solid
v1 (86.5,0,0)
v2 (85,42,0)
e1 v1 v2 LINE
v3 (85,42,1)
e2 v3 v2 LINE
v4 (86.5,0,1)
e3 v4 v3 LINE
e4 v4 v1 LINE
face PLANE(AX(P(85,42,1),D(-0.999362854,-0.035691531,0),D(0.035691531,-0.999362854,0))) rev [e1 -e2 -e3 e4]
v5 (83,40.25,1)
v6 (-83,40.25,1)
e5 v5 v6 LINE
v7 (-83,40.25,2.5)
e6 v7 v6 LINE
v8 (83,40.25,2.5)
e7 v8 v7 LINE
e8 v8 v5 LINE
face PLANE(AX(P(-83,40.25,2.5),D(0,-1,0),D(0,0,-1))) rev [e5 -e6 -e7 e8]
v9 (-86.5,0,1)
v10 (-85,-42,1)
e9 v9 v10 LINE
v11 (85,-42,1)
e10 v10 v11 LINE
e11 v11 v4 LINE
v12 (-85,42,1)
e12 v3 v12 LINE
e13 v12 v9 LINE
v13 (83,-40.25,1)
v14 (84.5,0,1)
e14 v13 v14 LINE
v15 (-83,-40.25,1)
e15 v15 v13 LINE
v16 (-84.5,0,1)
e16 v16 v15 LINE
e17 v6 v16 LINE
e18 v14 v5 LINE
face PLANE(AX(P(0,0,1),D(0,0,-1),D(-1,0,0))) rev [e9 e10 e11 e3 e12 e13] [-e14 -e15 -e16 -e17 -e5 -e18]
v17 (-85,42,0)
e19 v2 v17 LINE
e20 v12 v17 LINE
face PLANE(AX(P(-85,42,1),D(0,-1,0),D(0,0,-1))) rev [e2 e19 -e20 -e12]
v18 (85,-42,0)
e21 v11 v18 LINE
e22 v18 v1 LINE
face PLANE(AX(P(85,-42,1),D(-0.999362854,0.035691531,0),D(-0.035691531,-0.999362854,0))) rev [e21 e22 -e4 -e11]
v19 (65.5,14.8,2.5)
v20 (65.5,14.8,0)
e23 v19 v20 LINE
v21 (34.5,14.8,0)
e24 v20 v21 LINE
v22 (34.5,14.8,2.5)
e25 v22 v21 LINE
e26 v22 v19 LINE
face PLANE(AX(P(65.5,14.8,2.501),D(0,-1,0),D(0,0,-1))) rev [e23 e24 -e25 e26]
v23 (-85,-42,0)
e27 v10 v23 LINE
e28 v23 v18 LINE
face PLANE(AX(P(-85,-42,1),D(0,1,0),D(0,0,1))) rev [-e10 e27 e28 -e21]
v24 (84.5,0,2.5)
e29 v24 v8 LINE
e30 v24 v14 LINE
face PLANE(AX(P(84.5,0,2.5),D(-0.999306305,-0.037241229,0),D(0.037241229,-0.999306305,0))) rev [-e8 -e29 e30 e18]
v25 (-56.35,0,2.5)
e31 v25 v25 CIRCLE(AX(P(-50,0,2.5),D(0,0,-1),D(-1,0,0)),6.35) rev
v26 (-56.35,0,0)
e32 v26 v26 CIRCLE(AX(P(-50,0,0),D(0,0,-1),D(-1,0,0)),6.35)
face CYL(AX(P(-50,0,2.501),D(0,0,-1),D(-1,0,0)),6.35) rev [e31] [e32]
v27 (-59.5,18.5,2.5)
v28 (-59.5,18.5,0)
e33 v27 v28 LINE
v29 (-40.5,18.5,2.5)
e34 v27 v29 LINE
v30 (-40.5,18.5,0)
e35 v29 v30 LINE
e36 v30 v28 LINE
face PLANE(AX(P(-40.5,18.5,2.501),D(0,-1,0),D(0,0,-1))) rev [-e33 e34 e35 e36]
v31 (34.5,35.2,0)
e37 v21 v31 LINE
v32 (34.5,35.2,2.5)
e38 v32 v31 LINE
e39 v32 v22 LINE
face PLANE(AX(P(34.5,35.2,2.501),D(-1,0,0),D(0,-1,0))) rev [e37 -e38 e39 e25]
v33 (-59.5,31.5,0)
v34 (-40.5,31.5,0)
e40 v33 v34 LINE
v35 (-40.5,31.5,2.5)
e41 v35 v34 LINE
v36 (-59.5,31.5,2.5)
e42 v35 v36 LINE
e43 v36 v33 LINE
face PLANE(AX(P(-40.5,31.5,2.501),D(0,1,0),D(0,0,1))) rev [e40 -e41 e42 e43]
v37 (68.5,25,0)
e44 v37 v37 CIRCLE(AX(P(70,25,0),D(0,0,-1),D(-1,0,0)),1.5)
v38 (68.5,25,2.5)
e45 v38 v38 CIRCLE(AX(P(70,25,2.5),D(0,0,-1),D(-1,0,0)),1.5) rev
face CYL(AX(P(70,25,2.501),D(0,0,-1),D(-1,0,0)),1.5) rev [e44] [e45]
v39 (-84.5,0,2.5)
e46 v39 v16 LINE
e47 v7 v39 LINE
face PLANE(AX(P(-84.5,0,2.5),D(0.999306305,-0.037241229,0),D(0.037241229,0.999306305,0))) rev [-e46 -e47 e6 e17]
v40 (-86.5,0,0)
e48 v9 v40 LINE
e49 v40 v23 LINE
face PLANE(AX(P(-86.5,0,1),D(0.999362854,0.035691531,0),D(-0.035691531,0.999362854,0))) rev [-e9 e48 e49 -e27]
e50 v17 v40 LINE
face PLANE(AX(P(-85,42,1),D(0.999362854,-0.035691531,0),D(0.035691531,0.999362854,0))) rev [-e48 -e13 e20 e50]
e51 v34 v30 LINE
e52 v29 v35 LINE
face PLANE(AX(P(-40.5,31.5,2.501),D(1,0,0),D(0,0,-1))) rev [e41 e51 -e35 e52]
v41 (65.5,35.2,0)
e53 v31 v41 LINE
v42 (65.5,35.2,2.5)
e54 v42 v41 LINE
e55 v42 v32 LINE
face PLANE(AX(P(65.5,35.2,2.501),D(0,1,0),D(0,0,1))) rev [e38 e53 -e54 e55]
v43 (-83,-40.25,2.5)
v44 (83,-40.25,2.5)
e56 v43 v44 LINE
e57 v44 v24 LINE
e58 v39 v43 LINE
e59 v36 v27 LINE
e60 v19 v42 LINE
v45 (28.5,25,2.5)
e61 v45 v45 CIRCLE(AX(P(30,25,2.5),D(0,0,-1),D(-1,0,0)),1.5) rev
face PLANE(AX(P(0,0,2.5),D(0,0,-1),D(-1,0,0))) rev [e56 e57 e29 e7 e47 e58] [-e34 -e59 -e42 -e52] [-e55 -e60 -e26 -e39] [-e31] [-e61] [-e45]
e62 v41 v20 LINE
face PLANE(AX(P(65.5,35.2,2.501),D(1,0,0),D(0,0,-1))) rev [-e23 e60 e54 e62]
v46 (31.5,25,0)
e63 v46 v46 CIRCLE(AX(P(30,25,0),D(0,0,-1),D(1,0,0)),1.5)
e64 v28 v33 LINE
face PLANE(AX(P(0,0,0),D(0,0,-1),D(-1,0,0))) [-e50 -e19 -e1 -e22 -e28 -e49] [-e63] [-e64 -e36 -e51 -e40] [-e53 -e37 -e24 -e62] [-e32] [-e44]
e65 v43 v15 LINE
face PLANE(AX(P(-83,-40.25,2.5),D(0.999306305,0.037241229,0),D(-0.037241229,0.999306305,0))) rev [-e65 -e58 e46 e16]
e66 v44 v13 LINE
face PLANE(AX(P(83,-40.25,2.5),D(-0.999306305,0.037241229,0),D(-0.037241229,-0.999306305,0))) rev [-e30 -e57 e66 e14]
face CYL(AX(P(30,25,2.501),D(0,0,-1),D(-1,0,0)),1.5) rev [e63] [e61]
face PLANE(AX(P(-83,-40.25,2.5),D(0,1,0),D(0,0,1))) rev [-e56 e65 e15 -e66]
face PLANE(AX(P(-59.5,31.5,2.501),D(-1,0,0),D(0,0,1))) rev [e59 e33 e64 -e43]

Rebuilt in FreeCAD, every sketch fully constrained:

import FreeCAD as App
import Part
import Sketcher


def add_polygon(sketch, points):
    """Adds a closed chain of lines whose ends are joined by coincident constraints."""
    first, n = sketch.GeometryCount, len(points)
    for a, b in zip(points, points[1:] + points[:1]):
        sketch.addGeometry(Part.LineSegment(App.Vector(*a, 0), App.Vector(*b, 0)), False)
    for i in range(n):
        sketch.addConstraint(Sketcher.Constraint("Coincident", first + i, 2, first + (i + 1) % n, 1))

doc = App.newDocument("Part")
body = doc.addObject("PartDesign::Body", "Body")

# Sketch on XY plane
sketch1 = body.newObject("Sketcher::SketchObject", "Sketch")
sketch1.AttachmentSupport = (doc.getObject("XY_Plane"), [""])
sketch1.MapMode = "FlatFace"
add_polygon(sketch1, [(85, 42), (-85, 42), (-86.5, 0), (-85, -42), (85, -42), (86.5, 0)])  # lines 0-5
sketch1.addConstraint(Sketcher.Constraint("Horizontal", 0))
sketch1.addConstraint(Sketcher.Constraint("Horizontal", 3))
sketch1.addConstraint(Sketcher.Constraint("Symmetric", 0, 2, 3, 2, -1, 1))
sketch1.addConstraint(Sketcher.Constraint("Symmetric", 1, 2, 4, 2, -1, 1))
sketch1.addConstraint(Sketcher.Constraint("PointOnObject", 1, 2, -1))
sketch1.addConstraint(Sketcher.Constraint("Parallel", 2, 5))
sketch1.addConstraint(Sketcher.Constraint("Vertical", 0, 2, 2, 2))
sketch1.addConstraint(Sketcher.Constraint("DistanceX", 0, 2, 0, 1, 170.0))
sketch1.addConstraint(Sketcher.Constraint("DistanceY", -1, 1, 0, 2, 42.0))
sketch1.addConstraint(Sketcher.Constraint("DistanceX", 1, 2, 4, 2, 173.0))
pad1 = body.newObject("PartDesign::Pad", "Pad")
pad1.Profile = sketch1
pad1.Length = 1

# Sketch on XY plane
sketch2 = body.newObject("Sketcher::SketchObject", "Sketch001")
sketch2.AttachmentSupport = (doc.getObject("XY_Plane"), [""])
sketch2.MapMode = "FlatFace"
sketch2.AttachmentOffset = App.Placement(App.Vector(0, 0, 1), App.Rotation())
add_polygon(sketch2, [(83, 40.25), (-83, 40.25), (-84.5, 0), (-83, -40.25), (83, -40.25), (84.5, 0)])  # lines 0-5
sketch2.addConstraint(Sketcher.Constraint("Horizontal", 0))
sketch2.addConstraint(Sketcher.Constraint("Horizontal", 3))
sketch2.addConstraint(Sketcher.Constraint("Symmetric", 0, 2, 3, 2, -1, 1))
sketch2.addConstraint(Sketcher.Constraint("Symmetric", 1, 2, 4, 2, -1, 1))
sketch2.addConstraint(Sketcher.Constraint("PointOnObject", 1, 2, -1))
sketch2.addConstraint(Sketcher.Constraint("Parallel", 2, 5))
sketch2.addConstraint(Sketcher.Constraint("Vertical", 0, 2, 2, 2))
sketch2.addConstraint(Sketcher.Constraint("DistanceX", 0, 2, 0, 1, 166.0))
sketch2.addConstraint(Sketcher.Constraint("DistanceX", 1, 2, 4, 2, 169.0))
sketch2.addConstraint(Sketcher.Constraint("DistanceY", 2, 2, 0, 2, 80.5))
pad2 = body.newObject("PartDesign::Pad", "Pad001")
pad2.Profile = sketch2
pad2.Length = 1.5

# Sketch on XY plane
sketch3 = body.newObject("Sketcher::SketchObject", "Sketch002")
sketch3.AttachmentSupport = (doc.getObject("XY_Plane"), [""])
sketch3.MapMode = "FlatFace"
sketch3.addGeometry(Part.Circle(App.Vector(70, 25, 0), App.Vector(0, 0, 1), 1.5), False)
sketch3.addConstraint(Sketcher.Constraint("Diameter", 0, 3.0))
sketch3.addConstraint(Sketcher.Constraint("DistanceX", -1, 1, 0, 3, 70.0))
sketch3.addConstraint(Sketcher.Constraint("DistanceY", -1, 1, 0, 3, 25.0))
pocket1 = body.newObject("PartDesign::Pocket", "Pocket")
pocket1.Profile = sketch3
pocket1.Type = "UpToFirst"
pocket1.Reversed = True

# Sketch on XY plane
sketch4 = body.newObject("Sketcher::SketchObject", "Sketch003")
sketch4.AttachmentSupport = (doc.getObject("XY_Plane"), [""])
sketch4.MapMode = "FlatFace"
sketch4.addGeometry(Part.Circle(App.Vector(30, 25, 0), App.Vector(0, 0, 1), 1.5), False)
sketch4.addConstraint(Sketcher.Constraint("Diameter", 0, 3.0))
sketch4.addConstraint(Sketcher.Constraint("DistanceX", -1, 1, 0, 3, 30.0))
sketch4.addConstraint(Sketcher.Constraint("DistanceY", -1, 1, 0, 3, 25.0))
pocket2 = body.newObject("PartDesign::Pocket", "Pocket001")
pocket2.Profile = sketch4
pocket2.Type = "UpToFirst"
pocket2.Reversed = True

# Sketch on XY plane
sketch5 = body.newObject("Sketcher::SketchObject", "Sketch004")
sketch5.AttachmentSupport = (doc.getObject("XY_Plane"), [""])
sketch5.MapMode = "FlatFace"
sketch5.addGeometry(Part.Circle(App.Vector(-50, 0, 0), App.Vector(0, 0, 1), 6.35), False)
sketch5.addConstraint(Sketcher.Constraint("PointOnObject", 0, 3, -1))
sketch5.addConstraint(Sketcher.Constraint("Diameter", 0, 12.7))
sketch5.addConstraint(Sketcher.Constraint("DistanceX", 0, 3, -1, 1, 50.0))
pocket3 = body.newObject("PartDesign::Pocket", "Pocket002")
pocket3.Profile = sketch5
pocket3.Type = "UpToFirst"
pocket3.Reversed = True

# Sketch on XY plane
sketch6 = body.newObject("Sketcher::SketchObject", "Sketch005")
sketch6.AttachmentSupport = (doc.getObject("XY_Plane"), [""])
sketch6.MapMode = "FlatFace"
add_polygon(sketch6, [(65.5, 35.2), (65.5, 14.8), (34.5, 14.8), (34.5, 35.2)])  # lines 0-3
sketch6.addConstraint(Sketcher.Constraint("Vertical", 0))
sketch6.addConstraint(Sketcher.Constraint("Horizontal", 1))
sketch6.addConstraint(Sketcher.Constraint("Vertical", 2))
sketch6.addConstraint(Sketcher.Constraint("Horizontal", 3))
sketch6.addConstraint(Sketcher.Constraint("DistanceX", 1, 2, 1, 1, 31.0))
sketch6.addConstraint(Sketcher.Constraint("DistanceY", 0, 2, 0, 1, 20.4))
sketch6.addConstraint(Sketcher.Constraint("DistanceX", -1, 1, 0, 2, 65.5))
sketch6.addConstraint(Sketcher.Constraint("DistanceY", -1, 1, 0, 2, 14.8))
pocket4 = body.newObject("PartDesign::Pocket", "Pocket003")
pocket4.Profile = sketch6
pocket4.Type = "UpToFirst"
pocket4.Reversed = True

# Sketch on XY plane
sketch7 = body.newObject("Sketcher::SketchObject", "Sketch006")
sketch7.AttachmentSupport = (doc.getObject("XY_Plane"), [""])
sketch7.MapMode = "FlatFace"
add_polygon(sketch7, [(-40.5, 31.5), (-40.5, 18.5), (-59.5, 18.5), (-59.5, 31.5)])  # lines 0-3
sketch7.addConstraint(Sketcher.Constraint("Vertical", 0))
sketch7.addConstraint(Sketcher.Constraint("Horizontal", 1))
sketch7.addConstraint(Sketcher.Constraint("Vertical", 2))
sketch7.addConstraint(Sketcher.Constraint("Horizontal", 3))
sketch7.addConstraint(Sketcher.Constraint("DistanceX", 1, 2, 1, 1, 19.0))
sketch7.addConstraint(Sketcher.Constraint("DistanceY", 0, 2, 0, 1, 13.0))
sketch7.addConstraint(Sketcher.Constraint("DistanceX", 0, 2, -1, 1, 40.5))
sketch7.addConstraint(Sketcher.Constraint("DistanceY", -1, 1, 0, 2, 18.5))
pocket5 = body.newObject("PartDesign::Pocket", "Pocket004")
pocket5.Profile = sketch7
pocket5.Type = "UpToFirst"
pocket5.Reversed = True

doc.recompute()
